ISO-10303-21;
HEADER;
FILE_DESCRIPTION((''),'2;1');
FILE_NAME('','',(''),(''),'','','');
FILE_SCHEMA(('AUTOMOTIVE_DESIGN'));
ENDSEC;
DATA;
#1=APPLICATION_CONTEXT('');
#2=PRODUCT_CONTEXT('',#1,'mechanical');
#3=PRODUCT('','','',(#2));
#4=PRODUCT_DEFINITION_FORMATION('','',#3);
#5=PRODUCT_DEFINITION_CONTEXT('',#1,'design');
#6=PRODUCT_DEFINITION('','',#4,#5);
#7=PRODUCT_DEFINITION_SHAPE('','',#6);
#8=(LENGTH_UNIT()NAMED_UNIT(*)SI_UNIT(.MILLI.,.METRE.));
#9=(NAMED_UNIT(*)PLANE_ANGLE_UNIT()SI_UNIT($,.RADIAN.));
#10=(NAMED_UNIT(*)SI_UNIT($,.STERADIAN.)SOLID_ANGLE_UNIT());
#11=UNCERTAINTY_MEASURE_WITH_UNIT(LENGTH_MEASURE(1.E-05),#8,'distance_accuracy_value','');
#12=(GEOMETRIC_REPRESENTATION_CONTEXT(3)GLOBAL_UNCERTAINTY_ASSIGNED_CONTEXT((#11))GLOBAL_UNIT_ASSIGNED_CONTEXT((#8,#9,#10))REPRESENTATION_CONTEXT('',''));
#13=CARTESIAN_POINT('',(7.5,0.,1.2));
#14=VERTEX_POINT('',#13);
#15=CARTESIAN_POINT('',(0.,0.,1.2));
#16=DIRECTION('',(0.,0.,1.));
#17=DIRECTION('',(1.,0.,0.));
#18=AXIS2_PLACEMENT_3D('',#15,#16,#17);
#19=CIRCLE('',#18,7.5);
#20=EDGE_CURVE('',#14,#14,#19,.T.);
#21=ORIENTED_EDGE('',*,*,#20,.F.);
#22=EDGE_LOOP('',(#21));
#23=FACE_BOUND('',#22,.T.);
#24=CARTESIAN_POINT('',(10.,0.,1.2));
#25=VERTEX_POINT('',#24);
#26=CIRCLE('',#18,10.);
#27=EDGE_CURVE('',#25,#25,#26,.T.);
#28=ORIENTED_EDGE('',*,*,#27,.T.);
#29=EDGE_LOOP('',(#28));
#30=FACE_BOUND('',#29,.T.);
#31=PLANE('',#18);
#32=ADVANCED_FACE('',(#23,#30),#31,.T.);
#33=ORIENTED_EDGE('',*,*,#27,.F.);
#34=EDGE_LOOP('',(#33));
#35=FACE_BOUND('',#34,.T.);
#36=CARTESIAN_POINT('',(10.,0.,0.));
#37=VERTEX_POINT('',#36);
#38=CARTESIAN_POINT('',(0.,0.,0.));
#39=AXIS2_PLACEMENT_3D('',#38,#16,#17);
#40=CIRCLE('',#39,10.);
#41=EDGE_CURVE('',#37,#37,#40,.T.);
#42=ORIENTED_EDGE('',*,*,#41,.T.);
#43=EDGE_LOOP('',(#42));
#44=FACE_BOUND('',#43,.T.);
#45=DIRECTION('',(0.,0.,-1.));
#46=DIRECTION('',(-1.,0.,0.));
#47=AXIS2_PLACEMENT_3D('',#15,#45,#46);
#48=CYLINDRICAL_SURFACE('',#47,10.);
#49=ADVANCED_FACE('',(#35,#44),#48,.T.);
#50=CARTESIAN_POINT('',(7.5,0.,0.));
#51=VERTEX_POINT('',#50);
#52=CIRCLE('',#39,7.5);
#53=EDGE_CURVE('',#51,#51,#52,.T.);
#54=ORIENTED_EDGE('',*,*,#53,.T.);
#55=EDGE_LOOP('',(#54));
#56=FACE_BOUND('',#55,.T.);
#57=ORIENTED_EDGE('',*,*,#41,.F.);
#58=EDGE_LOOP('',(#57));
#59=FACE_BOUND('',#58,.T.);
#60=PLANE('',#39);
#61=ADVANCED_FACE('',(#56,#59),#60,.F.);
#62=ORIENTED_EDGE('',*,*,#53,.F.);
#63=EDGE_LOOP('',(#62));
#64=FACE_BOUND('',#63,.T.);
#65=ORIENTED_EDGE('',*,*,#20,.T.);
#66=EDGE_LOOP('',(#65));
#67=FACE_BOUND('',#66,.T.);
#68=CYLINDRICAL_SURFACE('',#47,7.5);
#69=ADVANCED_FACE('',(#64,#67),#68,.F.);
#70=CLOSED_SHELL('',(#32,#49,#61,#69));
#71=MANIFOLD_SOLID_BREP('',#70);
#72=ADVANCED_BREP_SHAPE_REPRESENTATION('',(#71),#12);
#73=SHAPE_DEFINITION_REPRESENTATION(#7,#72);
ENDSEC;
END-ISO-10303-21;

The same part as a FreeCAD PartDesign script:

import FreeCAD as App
import Part
import Sketcher

doc = App.newDocument("Part")
body = doc.addObject("PartDesign::Body", "Body")

# Sketch on XY plane
sketch1 = body.newObject("Sketcher::SketchObject", "Sketch")
sketch1.AttachmentSupport = (doc.getObject("XY_Plane"), [""])
sketch1.MapMode = "FlatFace"
sketch1.addGeometry([
    Part.Circle(App.Vector(0, 0, 0), App.Vector(0, 0, 1), 10),
    Part.Circle(App.Vector(0, 0, 0), App.Vector(0, 0, 1), 8),
], False)
sketch1.addConstraint([
    Sketcher.Constraint("Coincident", 0, 3, -1, 1),
    Sketcher.Constraint("Coincident", 1, 3, -1, 1),
    Sketcher.Constraint("Diameter", 0, 20.0),
    Sketcher.Constraint("Diameter", 1, 15.0),
])
pad1 = body.newObject("PartDesign::Pad", "Pad")
pad1.Profile = sketch1
pad1.Length = 1.2

doc.recompute()
